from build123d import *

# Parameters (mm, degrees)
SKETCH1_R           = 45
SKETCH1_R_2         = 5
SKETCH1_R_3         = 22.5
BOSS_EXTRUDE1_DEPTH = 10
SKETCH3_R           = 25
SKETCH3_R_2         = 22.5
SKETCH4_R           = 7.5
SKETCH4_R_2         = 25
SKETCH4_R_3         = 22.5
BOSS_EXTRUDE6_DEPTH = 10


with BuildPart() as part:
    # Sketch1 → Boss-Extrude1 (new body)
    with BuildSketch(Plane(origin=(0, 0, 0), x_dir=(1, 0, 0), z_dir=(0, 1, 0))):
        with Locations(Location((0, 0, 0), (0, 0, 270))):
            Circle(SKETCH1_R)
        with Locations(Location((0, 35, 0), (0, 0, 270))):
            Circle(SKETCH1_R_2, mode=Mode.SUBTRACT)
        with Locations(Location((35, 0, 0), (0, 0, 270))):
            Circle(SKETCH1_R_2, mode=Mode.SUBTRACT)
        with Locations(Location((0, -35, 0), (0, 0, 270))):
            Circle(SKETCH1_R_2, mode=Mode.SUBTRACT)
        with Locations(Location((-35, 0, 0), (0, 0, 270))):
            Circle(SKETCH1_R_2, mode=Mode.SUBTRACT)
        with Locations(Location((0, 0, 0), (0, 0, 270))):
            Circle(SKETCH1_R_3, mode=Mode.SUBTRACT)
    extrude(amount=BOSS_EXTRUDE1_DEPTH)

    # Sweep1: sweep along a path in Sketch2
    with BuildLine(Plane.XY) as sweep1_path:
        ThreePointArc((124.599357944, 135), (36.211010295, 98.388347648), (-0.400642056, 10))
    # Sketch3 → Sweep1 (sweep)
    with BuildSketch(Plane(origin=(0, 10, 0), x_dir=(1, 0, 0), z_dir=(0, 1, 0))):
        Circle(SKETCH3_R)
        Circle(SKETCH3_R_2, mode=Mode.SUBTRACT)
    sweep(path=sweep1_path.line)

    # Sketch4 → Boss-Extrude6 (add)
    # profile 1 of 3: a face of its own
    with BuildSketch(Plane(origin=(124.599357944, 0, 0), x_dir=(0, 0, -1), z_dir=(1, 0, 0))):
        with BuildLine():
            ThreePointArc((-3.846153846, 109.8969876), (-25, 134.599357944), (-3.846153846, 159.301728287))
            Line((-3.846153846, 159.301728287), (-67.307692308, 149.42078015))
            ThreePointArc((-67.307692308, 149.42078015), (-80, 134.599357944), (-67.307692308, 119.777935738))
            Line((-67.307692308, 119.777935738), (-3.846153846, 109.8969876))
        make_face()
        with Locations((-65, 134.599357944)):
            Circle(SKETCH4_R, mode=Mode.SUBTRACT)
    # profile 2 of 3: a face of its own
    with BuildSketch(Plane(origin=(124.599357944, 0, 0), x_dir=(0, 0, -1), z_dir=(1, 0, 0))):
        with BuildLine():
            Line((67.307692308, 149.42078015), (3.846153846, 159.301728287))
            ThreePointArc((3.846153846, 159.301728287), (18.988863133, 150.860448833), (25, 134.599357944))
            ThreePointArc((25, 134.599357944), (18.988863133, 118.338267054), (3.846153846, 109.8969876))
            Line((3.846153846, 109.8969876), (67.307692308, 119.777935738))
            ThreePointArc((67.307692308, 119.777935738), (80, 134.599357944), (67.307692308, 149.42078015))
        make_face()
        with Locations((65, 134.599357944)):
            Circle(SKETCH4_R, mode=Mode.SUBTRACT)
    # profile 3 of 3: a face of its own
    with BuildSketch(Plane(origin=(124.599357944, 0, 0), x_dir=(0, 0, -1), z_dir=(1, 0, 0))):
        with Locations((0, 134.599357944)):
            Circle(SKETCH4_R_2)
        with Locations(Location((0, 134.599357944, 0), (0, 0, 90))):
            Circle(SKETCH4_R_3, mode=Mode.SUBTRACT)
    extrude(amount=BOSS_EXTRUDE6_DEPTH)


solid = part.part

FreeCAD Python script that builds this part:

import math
import FreeCAD as App
import Part
import Sketcher
from FreeCAD import Vector

doc = App.newDocument("Part")
body = doc.addObject("PartDesign::Body", "Body")

sketch1 = doc.addObject("Sketcher::SketchObject", "Sketch")
body.addObject(sketch1)
sketch1.AttachmentSupport = (doc.XZ_Plane, [""])
sketch1.MapMode = "FlatFace"
sketch1.addGeometry([
    Part.Circle(Vector(0, 0, 0), Vector(0, 0, 1), 45),
    Part.Circle(Vector(0, -35, 0), Vector(0, 0, 1), 5),
    Part.Circle(Vector(-35, 0, 0), Vector(0, 0, 1), 5),
    Part.Circle(Vector(35, 0, 0), Vector(0, 0, 1), 5),
    Part.Circle(Vector(0, 0, 0), Vector(0, 0, 1), 22),
    Part.Circle(Vector(0, 35, 0), Vector(0, 0, 1), 5),
], False)
sketch1.addConstraint([
    Sketcher.Constraint("Coincident", 0, 3, -1, 1),
    Sketcher.Constraint("Coincident", 4, 3, -1, 1),
    Sketcher.Constraint("Equal", 1, 2),
    Sketcher.Constraint("Equal", 2, 3),
    Sketcher.Constraint("Equal", 3, 5),
    Sketcher.Constraint("Symmetric", 2, 3, 3, 3, -1, 1),
    Sketcher.Constraint("Symmetric", 1, 3, 5, 3, -1, 1),
    Sketcher.Constraint("PointOnObject", 1, 3, -2),
    Sketcher.Constraint("PointOnObject", 2, 3, -1),
    Sketcher.Constraint("Diameter", 0, 90.0),
    Sketcher.Constraint("Diameter", 1, 10.0),
    Sketcher.Constraint("Diameter", 4, 45.0),
    Sketcher.Constraint("DistanceY", 1, 3, -1, 1, 35.0),
    Sketcher.Constraint("DistanceX", 2, 3, -1, 1, 35.0),
])
pad1 = doc.addObject("PartDesign::Pad", "Pad")
body.addObject(pad1)
pad1.Profile = sketch1
pad1.Length = 10
pad1.Reversed = True

sketch2 = doc.addObject("Sketcher::SketchObject", "Sketch001")
body.addObject(sketch2)
sketch2.AttachmentSupport = (doc.XZ_Plane, [""])
sketch2.MapMode = "FlatFace"
sketch2.AttachmentOffset = App.Placement(Vector(0, 0, -10), App.Rotation())
sketch2.addGeometry([
    Part.Circle(Vector(0, 0, 0), Vector(0, 0, 1), 25),
    Part.Circle(Vector(0, 0, 0), Vector(0, 0, 1), 22),
], False)
sketch2.addConstraint([
    Sketcher.Constraint("Coincident", 0, 3, -1, 1),
    Sketcher.Constraint("Coincident", 1, 3, -1, 1),
    Sketcher.Constraint("Diameter", 0, 50.0),
    Sketcher.Constraint("Diameter", 1, 45.0),
])

sketch3 = doc.addObject("Sketcher::SketchObject", "Sketch002")
body.addObject(sketch3)
sketch3.AttachmentSupport = (doc.XY_Plane, [""])
sketch3.MapMode = "FlatFace"
sketch3.addGeometry(Part.ArcOfCircle(Part.Circle(Vector(125, 10, 0), Vector(0, 0, 1), 125), math.radians(90), math.radians(180)), False)
sketch3.addConstraint([
    Sketcher.Constraint("Radius", 0, 125.0),
    Sketcher.Constraint("DistanceY", -1, 1, 0, 3, 10.0),
    Sketcher.Constraint("DistanceY", -1, 1, 0, 2, 10.0),
    Sketcher.Constraint("DistanceX", 0, 2, 0, 1, 125.0),
    Sketcher.Constraint("DistanceX", -1, 1, 0, 3, 124.599358),
])
doc.recompute()

additivepipe = doc.addObject("PartDesign::AdditivePipe", "AdditivePipe")
body.addObject(additivepipe)
additivepipe.Profile = sketch2
additivepipe.Spine = (sketch3, ["Edge1"])

sketch4 = doc.addObject("Sketcher::SketchObject", "Sketch003")
body.addObject(sketch4)
sketch4.AttachmentSupport = (doc.YZ_Plane, [""])
sketch4.MapMode = "FlatFace"
sketch4.AttachmentOffset = App.Placement(Vector(0, 0, 124.599358), App.Rotation())
sketch4.addGeometry([
    Part.LineSegment(Vector(120, 67, 0), Vector(110, 4, 0)),
    Part.ArcOfCircle(Part.Circle(Vector(135, 0, 0), Vector(0, 0, 1), 25), math.radians(171.15), math.radians(188.85)),
    Part.LineSegment(Vector(110, -4, 0), Vector(120, -67, 0)),
    Part.ArcOfCircle(Part.Circle(Vector(135, -65, 0), Vector(0, 0, 1), 15), math.radians(-171), math.radians(-9)),
    Part.LineSegment(Vector(149, -67, 0), Vector(159, -4, 0)),
    Part.ArcOfCircle(Part.Circle(Vector(135, 0, 0), Vector(0, 0, 1), 25), math.radians(-8.85), math.radians(8.85)),
    Part.LineSegment(Vector(159, 4, 0), Vector(149, 67, 0)),
    Part.ArcOfCircle(Part.Circle(Vector(135, 65, 0), Vector(0, 0, 1), 15), math.radians(9), math.radians(171)),
    Part.Circle(Vector(135, 65, 0), Vector(0, 0, 1), 8),
    Part.Circle(Vector(135, 0, 0), Vector(0, 0, 1), 22),
    Part.Circle(Vector(135, -65, 0), Vector(0, 0, 1), 8),
], False)
sketch4.addConstraint([
    Sketcher.Constraint("Tangent", 0, 2, 1, 1),
    Sketcher.Constraint("Tangent", 1, 2, 2, 1),
    Sketcher.Constraint("Tangent", 2, 2, 3, 1),
    Sketcher.Constraint("Tangent", 3, 2, 4, 1),
    Sketcher.Constraint("Tangent", 4, 2, 5, 1),
    Sketcher.Constraint("Tangent", 5, 2, 6, 1),
    Sketcher.Constraint("Tangent", 6, 2, 7, 1),
    Sketcher.Constraint("Tangent", 7, 2, 0, 1),
    Sketcher.Constraint("Coincident", 5, 3, 1, 3),
    Sketcher.Constraint("Coincident", 8, 3, 7, 3),
    Sketcher.Constraint("Coincident", 9, 3, 1, 3),
    Sketcher.Constraint("Coincident", 10, 3, 3, 3),
    Sketcher.Constraint("Equal", 1, 5),
    Sketcher.Constraint("Equal", 3, 7),
    Sketcher.Constraint("Equal", 8, 10),
    Sketcher.Constraint("Symmetric", 3, 3, 7, 3, -1),
    Sketcher.Constraint("PointOnObject", 1, 3, -1),
    Sketcher.Constraint("Parallel", 0, 4),
    Sketcher.Constraint("Diameter", 8, 15.0),
    Sketcher.Constraint("Diameter", 9, 45.0),
    Sketcher.Constraint("Radius", 1, 25.0),
    Sketcher.Constraint("Radius", 3, 15.0),
    Sketcher.Constraint("DistanceY", 3, 3, -1, 1, 65.0),
    Sketcher.Constraint("DistanceX", -1, 1, 3, 2, 149.42078),
])
pad2 = doc.addObject("PartDesign::Pad", "Pad001")
body.addObject(pad2)
pad2.Profile = sketch4
pad2.Length = 10

doc.recompute()
